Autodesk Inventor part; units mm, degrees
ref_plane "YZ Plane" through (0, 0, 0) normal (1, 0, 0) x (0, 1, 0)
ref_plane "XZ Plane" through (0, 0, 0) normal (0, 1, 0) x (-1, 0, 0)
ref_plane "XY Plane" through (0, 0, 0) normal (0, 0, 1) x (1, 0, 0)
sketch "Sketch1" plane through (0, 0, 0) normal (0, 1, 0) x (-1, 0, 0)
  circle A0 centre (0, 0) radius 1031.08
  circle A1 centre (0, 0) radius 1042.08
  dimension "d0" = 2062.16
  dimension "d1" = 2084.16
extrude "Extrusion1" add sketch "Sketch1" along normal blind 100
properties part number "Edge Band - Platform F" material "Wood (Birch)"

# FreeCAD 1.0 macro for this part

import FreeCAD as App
import Part
import Sketcher
Q = App.Units.Quantity

doc = App.newDocument("Part")
body = doc.addObject("PartDesign::Body", "Body")

# Sketch on XZ plane
sketch1 = body.newObject("Sketcher::SketchObject", "Sketch")
sketch1.AttachmentSupport = (doc.getObject("XZ_Plane"), [""])
sketch1.MapMode = "FlatFace"
sketch1.addGeometry(Part.Circle(App.Vector(0, 0, 0), App.Vector(0, 0, 1), 1042), False)
sketch1.addGeometry(Part.Circle(App.Vector(0, 0, 0), App.Vector(0, 0, 1), 1031), False)
sketch1.addConstraint(Sketcher.Constraint("Coincident", 0, 3, -1, 1))
sketch1.addConstraint(Sketcher.Constraint("Coincident", 1, 3, -1, 1))
sketch1.addConstraint(Sketcher.Constraint("Diameter", 1, Q("81.1874 in")))
sketch1.addConstraint(Sketcher.Constraint("Diameter", 0, Q("2084.16 mm")))
pad1 = body.newObject("PartDesign::Pad", "Pad")
pad1.Profile = sketch1
pad1.Length = Q("3.9370079 in")
pad1.Reversed = True

doc.recompute()
